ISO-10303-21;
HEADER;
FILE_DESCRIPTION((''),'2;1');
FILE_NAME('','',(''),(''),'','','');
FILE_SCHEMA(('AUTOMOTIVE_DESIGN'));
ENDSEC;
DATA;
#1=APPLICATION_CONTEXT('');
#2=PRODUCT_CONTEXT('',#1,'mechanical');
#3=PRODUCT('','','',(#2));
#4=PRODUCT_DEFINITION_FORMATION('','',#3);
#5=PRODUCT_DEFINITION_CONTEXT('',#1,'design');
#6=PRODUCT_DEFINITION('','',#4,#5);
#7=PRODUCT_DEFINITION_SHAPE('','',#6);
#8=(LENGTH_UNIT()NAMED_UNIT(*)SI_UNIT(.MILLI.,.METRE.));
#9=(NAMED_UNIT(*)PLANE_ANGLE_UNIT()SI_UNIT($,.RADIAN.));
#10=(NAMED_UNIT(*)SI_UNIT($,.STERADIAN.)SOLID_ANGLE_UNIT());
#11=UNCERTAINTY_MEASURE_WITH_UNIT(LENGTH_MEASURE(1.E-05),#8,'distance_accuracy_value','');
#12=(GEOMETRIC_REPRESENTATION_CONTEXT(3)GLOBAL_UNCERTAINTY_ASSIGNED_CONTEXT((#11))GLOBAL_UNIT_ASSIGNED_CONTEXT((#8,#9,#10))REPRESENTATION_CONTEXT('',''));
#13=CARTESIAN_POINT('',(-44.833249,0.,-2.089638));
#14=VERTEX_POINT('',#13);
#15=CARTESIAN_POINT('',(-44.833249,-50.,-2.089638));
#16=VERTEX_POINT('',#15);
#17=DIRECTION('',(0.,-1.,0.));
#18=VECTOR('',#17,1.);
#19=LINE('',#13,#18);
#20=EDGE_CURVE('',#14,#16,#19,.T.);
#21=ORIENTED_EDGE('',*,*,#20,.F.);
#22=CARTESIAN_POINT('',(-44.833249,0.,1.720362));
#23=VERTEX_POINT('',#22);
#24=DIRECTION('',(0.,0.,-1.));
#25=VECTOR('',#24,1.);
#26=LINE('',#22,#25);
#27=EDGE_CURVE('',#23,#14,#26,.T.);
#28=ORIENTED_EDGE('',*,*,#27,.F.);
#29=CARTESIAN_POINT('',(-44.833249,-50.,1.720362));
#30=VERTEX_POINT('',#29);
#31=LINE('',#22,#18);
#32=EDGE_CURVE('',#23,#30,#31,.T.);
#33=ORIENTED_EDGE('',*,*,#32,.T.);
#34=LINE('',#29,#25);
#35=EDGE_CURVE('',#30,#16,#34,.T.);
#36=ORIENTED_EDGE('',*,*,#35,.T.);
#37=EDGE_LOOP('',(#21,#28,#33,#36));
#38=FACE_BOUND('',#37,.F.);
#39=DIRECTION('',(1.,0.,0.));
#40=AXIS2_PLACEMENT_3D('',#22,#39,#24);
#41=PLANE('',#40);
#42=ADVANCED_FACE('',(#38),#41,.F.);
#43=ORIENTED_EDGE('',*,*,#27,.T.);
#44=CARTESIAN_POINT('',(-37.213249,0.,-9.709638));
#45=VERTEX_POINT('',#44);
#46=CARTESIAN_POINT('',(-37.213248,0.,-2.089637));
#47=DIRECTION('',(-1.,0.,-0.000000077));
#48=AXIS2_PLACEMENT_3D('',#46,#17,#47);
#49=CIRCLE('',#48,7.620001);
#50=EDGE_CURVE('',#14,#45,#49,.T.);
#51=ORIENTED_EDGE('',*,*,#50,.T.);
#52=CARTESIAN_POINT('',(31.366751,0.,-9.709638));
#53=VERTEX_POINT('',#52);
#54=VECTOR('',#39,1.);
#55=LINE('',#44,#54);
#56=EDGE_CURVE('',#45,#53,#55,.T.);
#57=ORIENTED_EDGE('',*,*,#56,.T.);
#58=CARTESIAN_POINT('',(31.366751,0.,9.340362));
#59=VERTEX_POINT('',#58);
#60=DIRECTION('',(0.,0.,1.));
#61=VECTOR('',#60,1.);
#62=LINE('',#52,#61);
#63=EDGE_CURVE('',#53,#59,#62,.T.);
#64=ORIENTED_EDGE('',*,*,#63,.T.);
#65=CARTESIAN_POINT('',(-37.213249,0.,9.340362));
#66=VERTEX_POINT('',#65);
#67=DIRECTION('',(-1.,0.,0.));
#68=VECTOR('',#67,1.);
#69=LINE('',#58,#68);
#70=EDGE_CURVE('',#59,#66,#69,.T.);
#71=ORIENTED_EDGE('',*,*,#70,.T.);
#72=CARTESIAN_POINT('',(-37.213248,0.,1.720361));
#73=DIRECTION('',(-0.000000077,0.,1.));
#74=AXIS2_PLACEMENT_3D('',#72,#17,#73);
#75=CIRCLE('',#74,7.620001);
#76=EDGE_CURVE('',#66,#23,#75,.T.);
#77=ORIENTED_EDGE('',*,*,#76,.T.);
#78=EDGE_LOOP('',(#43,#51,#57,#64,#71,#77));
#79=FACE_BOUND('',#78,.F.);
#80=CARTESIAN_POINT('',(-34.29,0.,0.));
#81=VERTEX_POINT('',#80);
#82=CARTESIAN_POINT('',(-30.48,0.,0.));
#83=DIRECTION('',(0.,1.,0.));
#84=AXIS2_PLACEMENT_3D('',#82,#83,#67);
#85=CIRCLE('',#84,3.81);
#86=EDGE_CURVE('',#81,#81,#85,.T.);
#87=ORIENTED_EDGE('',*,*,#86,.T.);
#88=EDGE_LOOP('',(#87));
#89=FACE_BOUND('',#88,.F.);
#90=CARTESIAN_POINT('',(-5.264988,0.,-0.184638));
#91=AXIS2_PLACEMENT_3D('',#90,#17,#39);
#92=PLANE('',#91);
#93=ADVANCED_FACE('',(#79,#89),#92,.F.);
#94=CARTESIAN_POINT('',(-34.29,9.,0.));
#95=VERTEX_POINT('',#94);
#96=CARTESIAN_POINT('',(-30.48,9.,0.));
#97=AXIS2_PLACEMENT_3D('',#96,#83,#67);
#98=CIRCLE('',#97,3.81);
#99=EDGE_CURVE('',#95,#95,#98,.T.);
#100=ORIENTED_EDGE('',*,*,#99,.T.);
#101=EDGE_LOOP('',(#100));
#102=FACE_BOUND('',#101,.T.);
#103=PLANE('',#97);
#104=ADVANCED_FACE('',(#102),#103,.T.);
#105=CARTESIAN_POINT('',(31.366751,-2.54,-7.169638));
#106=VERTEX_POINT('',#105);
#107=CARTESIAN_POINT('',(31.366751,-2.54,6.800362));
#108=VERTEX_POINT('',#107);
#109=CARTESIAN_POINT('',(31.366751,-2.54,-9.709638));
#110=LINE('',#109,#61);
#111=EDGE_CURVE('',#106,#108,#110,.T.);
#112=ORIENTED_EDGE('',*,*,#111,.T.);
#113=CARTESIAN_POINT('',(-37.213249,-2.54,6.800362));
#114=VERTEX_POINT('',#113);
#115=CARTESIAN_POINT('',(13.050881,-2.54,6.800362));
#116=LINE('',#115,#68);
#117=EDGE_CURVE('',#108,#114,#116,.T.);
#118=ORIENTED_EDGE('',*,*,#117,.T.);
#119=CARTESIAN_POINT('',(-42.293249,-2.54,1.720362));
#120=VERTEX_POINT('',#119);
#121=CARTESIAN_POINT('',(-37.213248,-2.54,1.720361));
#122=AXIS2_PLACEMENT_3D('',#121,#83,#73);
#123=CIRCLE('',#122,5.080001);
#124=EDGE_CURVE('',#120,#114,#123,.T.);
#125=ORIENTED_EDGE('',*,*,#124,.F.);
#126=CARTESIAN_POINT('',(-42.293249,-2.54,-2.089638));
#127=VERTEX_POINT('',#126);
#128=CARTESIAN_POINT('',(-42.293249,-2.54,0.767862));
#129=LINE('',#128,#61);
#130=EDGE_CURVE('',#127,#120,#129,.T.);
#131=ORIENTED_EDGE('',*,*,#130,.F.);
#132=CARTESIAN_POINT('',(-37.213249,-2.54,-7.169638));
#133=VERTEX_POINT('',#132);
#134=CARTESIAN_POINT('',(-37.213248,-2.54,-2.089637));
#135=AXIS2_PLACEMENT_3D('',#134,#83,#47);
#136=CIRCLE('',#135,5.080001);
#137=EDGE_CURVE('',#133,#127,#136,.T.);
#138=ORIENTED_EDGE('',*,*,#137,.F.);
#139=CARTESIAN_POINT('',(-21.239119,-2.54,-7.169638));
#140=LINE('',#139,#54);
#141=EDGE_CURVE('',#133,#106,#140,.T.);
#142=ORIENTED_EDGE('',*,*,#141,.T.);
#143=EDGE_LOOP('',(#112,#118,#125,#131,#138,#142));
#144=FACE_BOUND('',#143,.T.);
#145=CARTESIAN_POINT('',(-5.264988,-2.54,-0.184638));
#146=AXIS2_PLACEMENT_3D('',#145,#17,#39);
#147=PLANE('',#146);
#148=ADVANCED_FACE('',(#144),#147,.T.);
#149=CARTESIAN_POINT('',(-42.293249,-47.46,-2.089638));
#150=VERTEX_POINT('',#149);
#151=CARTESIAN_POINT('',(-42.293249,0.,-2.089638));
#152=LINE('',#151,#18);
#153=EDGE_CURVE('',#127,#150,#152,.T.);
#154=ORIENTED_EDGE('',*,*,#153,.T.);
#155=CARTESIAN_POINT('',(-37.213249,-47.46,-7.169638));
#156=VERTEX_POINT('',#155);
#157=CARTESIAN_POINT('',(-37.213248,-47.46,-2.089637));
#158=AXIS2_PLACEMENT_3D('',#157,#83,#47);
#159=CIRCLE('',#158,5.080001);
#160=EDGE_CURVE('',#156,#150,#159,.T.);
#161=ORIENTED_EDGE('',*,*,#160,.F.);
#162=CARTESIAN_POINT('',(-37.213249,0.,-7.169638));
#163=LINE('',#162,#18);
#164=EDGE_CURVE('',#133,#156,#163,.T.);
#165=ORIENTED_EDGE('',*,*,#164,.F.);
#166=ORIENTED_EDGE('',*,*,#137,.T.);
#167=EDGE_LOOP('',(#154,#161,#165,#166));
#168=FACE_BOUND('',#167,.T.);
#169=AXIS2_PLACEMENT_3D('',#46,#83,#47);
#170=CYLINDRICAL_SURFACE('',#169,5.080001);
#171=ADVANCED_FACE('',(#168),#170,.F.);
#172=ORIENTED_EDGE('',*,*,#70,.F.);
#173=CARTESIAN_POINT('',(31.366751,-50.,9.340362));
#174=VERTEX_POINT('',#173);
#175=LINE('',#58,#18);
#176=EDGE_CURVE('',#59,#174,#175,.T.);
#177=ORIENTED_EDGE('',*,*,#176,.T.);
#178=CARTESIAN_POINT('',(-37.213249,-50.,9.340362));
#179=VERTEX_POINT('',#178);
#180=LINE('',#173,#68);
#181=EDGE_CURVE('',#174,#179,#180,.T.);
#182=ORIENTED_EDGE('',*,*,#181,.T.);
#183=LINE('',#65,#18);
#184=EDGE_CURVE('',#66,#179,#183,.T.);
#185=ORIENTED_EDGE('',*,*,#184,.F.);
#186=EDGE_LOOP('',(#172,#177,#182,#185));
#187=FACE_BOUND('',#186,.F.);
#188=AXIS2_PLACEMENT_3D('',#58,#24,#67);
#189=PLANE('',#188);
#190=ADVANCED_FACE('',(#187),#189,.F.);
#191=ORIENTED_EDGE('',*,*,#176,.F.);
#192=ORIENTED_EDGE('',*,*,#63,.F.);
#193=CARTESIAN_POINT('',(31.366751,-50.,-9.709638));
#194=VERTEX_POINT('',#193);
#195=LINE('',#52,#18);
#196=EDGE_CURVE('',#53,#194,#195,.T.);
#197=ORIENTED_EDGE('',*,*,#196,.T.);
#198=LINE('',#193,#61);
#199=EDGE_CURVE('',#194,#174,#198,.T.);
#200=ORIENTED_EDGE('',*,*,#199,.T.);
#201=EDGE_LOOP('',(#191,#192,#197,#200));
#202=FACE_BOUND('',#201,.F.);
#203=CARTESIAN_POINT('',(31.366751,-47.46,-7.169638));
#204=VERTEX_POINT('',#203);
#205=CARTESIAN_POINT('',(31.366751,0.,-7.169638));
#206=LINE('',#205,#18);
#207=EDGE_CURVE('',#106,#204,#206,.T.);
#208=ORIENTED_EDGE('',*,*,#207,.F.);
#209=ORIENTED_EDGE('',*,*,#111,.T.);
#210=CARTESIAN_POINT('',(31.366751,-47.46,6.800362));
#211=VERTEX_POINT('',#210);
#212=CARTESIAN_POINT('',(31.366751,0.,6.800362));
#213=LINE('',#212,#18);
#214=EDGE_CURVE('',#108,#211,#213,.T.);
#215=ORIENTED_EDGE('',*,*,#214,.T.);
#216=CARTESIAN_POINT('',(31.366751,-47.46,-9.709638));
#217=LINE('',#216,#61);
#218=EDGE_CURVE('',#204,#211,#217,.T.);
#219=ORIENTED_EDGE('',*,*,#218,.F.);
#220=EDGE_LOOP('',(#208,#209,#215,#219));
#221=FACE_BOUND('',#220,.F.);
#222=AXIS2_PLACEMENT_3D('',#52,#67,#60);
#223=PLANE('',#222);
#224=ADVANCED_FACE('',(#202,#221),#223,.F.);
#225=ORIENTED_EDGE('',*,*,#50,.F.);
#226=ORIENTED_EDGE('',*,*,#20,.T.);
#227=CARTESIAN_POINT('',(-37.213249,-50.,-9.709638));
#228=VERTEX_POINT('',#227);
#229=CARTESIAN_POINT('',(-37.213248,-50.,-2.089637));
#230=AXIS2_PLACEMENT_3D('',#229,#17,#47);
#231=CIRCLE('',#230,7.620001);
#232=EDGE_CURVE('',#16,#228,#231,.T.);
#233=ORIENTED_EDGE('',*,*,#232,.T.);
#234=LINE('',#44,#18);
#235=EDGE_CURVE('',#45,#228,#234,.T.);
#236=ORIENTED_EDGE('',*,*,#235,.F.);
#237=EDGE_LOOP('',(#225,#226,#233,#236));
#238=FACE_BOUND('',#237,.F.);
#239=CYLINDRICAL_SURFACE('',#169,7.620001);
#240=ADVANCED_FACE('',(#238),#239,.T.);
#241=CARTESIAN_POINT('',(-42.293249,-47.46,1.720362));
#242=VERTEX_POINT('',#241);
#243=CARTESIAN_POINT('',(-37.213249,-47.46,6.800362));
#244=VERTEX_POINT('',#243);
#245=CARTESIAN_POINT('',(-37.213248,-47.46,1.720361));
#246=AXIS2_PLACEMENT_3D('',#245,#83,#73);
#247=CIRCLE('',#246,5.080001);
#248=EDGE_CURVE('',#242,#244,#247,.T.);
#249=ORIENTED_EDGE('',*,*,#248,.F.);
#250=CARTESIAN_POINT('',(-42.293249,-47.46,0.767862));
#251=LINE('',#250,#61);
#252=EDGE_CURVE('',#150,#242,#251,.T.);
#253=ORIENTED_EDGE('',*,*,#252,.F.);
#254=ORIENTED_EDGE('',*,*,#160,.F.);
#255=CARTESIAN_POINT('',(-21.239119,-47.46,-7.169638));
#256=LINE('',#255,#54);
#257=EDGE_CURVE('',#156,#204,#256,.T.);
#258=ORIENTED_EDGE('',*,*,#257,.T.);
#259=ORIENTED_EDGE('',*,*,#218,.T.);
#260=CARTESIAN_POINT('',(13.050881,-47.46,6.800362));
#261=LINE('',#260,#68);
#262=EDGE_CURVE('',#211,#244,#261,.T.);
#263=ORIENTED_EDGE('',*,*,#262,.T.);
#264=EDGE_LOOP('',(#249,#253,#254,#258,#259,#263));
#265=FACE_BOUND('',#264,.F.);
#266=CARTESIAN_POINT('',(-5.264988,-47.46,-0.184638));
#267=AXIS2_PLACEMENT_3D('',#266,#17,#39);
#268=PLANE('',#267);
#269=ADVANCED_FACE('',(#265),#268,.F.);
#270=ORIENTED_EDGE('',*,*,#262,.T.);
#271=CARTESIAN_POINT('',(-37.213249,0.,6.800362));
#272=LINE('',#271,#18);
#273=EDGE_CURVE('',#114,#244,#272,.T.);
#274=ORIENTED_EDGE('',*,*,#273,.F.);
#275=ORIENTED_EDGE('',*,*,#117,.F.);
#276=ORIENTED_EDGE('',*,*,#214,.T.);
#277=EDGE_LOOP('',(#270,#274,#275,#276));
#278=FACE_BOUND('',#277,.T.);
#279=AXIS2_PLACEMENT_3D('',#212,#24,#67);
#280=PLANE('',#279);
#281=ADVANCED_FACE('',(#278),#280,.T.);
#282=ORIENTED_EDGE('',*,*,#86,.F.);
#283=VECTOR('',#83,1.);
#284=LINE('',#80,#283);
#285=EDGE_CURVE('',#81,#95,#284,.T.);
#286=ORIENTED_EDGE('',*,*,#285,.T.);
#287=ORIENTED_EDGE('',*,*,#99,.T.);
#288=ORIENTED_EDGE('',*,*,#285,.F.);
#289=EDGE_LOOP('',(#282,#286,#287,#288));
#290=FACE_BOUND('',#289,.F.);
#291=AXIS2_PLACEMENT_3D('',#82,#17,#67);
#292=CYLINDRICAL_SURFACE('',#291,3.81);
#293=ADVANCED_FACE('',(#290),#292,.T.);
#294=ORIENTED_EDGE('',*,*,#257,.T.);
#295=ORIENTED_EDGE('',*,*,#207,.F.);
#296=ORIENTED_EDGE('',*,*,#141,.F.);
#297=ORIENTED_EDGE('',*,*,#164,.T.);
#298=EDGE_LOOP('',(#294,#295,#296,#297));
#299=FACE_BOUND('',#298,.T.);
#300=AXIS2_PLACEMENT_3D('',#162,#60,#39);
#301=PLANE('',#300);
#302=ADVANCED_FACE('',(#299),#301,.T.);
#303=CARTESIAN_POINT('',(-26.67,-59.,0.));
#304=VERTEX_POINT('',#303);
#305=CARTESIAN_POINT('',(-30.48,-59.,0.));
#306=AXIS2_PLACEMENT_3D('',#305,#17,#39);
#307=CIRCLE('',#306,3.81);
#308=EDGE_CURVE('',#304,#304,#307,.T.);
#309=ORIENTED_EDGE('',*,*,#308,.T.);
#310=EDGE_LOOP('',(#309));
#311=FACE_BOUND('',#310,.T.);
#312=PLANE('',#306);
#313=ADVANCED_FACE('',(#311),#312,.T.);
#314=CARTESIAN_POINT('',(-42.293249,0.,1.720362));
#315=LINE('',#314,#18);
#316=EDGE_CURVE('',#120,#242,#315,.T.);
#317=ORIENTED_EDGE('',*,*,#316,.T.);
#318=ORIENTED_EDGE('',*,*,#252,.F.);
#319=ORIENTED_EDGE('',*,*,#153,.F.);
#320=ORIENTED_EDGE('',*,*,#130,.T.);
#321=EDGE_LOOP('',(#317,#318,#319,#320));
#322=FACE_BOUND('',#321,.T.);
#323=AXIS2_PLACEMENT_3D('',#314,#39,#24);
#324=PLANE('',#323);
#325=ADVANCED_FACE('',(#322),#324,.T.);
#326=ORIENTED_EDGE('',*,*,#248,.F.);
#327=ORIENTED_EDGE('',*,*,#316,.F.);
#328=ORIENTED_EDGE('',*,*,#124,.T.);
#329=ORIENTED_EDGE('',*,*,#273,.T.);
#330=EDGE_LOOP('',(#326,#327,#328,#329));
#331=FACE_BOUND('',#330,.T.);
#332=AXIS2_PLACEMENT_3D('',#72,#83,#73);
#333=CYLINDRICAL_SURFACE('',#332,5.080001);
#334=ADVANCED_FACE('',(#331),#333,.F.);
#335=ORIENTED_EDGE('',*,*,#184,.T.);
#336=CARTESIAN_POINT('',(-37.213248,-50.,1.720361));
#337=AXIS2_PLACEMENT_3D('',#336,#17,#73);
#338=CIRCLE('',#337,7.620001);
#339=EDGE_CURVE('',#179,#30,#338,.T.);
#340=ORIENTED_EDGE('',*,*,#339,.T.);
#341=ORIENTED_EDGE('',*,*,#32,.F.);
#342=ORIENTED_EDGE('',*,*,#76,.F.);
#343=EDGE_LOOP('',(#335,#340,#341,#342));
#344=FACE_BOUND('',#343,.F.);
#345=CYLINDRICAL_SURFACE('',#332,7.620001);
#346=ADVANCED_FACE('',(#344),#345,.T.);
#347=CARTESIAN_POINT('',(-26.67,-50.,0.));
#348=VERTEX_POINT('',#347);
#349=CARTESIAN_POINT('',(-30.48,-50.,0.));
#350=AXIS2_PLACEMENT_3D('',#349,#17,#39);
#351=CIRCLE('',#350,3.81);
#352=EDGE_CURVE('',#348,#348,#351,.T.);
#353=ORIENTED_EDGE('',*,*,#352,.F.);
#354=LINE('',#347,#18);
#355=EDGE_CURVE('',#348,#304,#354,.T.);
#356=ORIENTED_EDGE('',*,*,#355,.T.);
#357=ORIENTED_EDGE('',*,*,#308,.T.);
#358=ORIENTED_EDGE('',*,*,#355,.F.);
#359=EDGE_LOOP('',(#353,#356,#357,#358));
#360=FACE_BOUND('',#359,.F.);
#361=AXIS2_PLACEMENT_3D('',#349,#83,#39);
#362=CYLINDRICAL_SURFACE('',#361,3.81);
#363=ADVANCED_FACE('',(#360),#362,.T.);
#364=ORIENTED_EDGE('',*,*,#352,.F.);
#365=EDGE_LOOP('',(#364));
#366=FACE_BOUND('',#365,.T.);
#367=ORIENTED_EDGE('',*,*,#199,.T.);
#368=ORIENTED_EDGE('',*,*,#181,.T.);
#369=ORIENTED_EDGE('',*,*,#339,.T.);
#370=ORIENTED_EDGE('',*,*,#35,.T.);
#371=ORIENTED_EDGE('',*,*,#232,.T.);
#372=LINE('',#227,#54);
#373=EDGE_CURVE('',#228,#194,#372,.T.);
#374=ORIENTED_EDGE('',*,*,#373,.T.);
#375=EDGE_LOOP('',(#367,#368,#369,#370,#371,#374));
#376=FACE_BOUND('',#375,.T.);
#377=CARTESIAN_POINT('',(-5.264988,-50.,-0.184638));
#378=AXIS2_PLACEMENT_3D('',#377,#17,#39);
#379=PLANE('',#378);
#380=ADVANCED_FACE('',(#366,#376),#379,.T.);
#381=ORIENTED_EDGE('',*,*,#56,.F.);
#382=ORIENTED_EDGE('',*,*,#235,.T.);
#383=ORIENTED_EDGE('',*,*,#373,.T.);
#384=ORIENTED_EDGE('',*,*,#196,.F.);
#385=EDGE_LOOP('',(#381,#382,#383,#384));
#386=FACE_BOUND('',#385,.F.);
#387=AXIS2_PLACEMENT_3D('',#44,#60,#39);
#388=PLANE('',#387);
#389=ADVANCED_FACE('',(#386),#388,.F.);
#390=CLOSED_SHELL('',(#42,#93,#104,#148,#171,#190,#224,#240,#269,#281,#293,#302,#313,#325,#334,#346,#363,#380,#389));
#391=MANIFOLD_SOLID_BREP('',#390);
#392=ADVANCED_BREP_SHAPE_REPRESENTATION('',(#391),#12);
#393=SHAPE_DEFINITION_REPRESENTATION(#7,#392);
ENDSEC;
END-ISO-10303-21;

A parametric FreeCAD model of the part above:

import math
import FreeCAD as App
import Part
import Sketcher
from FreeCAD import Vector
Q = App.Units.Quantity


def faces_at(feature, points):
    """Names of the faces that lie closest to the given points."""
    faces = feature.Shape.Faces
    near = lambda p: min(range(len(faces)), key=lambda i: faces[i].distToShape(Part.Vertex(*p))[0])
    return sorted({f"Face{near(p) + 1}" for p in points})

doc = App.newDocument("Part")
body = doc.addObject("PartDesign::Body", "Body")

sketch1 = doc.addObject("Sketcher::SketchObject", "Sketch")
body.addObject(sketch1)
sketch1.AttachmentSupport = (doc.XZ_Plane, [""])
sketch1.MapMode = "FlatFace"
sketch1.addGeometry([
    Part.LineSegment(Vector(31.4, 9.3, 0), Vector(-37.2, 9.3, 0)),
    Part.ArcOfCircle(Part.Circle(Vector(-37.2, 1.7, 0), Vector(0, 0, 1), 7.6), math.radians(90), math.radians(180)),
    Part.LineSegment(Vector(-44.8, 1.7, 0), Vector(-44.8, -2.1, 0)),
    Part.ArcOfCircle(Part.Circle(Vector(-37.2, -2.1, 0), Vector(0, 0, 1), 7.6), math.radians(-180), math.radians(-90)),
    Part.LineSegment(Vector(-37.2, -9.7, 0), Vector(31.4, -9.7, 0)),
    Part.LineSegment(Vector(31.4, -9.7, 0), Vector(31.4, 9.3, 0)),
], False)
sketch1.addConstraint([
    Sketcher.Constraint("Tangent", 0, 2, 1, 1),
    Sketcher.Constraint("Tangent", 1, 2, 2, 1),
    Sketcher.Constraint("Tangent", 2, 2, 3, 1),
    Sketcher.Constraint("Tangent", 3, 2, 4, 1),
    Sketcher.Constraint("Coincident", 4, 2, 5, 1),
    Sketcher.Constraint("Coincident", 5, 2, 0, 1),
    Sketcher.Constraint("Horizontal", 0),
    Sketcher.Constraint("Vertical", 2),
    Sketcher.Constraint("Horizontal", 4),
    Sketcher.Constraint("Vertical", 5),
    Sketcher.Constraint("Equal", 1, 3),
    Sketcher.Constraint("Radius", 1, Q("0.3 in")),
    Sketcher.Constraint("DistanceX", 0, 2, 0, 1, Q("2.7 in")),
    Sketcher.Constraint("DistanceY", 2, 2, 2, 1, Q("0.15 in")),
    Sketcher.Constraint("DistanceX", 1, 3, -1, 1, 37.213248),
    Sketcher.Constraint("DistanceY", -1, 1, 1, 3, 1.720361),
])
pad1 = doc.addObject("PartDesign::Pad", "Pad")
body.addObject(pad1)
pad1.Profile = sketch1
pad1.Length = 50
doc.recompute()

thickness = doc.addObject("PartDesign::Thickness", "Thickness")
body.addObject(thickness)
thickness.Base = (pad1, faces_at(pad1, [(31.367, -25, -0.185)]))
thickness.Value = Q("0.1 in")
thickness.Reversed = True
thickness.Join = "Arc"

sketch2 = doc.addObject("Sketcher::SketchObject", "Sketch001")
body.addObject(sketch2)
sketch2.AttachmentSupport = (doc.XZ_Plane, [""])
sketch2.MapMode = "FlatFace"
sketch2.AttachmentOffset = App.Placement(Vector(0, 0, 50), App.Rotation())
sketch2.addGeometry(Part.Circle(Vector(-30.5, 0, 0), Vector(0, 0, 1), 3.8), False)
sketch2.addConstraint([
    Sketcher.Constraint("PointOnObject", 0, 3, -1),
    Sketcher.Constraint("Diameter", 0, Q("0.3 in")),
    Sketcher.Constraint("DistanceX", 0, 3, -1, 1, Q("1.2 in")),
])
pad2 = doc.addObject("PartDesign::Pad", "Pad001")
body.addObject(pad2)
pad2.Profile = sketch2
pad2.Length = 9

sketch3 = doc.addObject("Sketcher::SketchObject", "Sketch002")
body.addObject(sketch3)
sketch3.AttachmentSupport = (doc.XZ_Plane, [""])
sketch3.MapMode = "FlatFace"
sketch3.addGeometry(Part.Circle(Vector(-30.5, 0, 0), Vector(0, 0, 1), 3.8), False)
sketch3.addConstraint([
    Sketcher.Constraint("PointOnObject", 0, 3, -1),
    Sketcher.Constraint("Diameter", 0, Q("0.3 in")),
    Sketcher.Constraint("DistanceX", 0, 3, -1, 1, Q("1.2 in")),
])
pad3 = doc.addObject("PartDesign::Pad", "Pad002")
body.addObject(pad3)
pad3.Profile = sketch3
pad3.Length = 9
pad3.Reversed = True

doc.recompute()
